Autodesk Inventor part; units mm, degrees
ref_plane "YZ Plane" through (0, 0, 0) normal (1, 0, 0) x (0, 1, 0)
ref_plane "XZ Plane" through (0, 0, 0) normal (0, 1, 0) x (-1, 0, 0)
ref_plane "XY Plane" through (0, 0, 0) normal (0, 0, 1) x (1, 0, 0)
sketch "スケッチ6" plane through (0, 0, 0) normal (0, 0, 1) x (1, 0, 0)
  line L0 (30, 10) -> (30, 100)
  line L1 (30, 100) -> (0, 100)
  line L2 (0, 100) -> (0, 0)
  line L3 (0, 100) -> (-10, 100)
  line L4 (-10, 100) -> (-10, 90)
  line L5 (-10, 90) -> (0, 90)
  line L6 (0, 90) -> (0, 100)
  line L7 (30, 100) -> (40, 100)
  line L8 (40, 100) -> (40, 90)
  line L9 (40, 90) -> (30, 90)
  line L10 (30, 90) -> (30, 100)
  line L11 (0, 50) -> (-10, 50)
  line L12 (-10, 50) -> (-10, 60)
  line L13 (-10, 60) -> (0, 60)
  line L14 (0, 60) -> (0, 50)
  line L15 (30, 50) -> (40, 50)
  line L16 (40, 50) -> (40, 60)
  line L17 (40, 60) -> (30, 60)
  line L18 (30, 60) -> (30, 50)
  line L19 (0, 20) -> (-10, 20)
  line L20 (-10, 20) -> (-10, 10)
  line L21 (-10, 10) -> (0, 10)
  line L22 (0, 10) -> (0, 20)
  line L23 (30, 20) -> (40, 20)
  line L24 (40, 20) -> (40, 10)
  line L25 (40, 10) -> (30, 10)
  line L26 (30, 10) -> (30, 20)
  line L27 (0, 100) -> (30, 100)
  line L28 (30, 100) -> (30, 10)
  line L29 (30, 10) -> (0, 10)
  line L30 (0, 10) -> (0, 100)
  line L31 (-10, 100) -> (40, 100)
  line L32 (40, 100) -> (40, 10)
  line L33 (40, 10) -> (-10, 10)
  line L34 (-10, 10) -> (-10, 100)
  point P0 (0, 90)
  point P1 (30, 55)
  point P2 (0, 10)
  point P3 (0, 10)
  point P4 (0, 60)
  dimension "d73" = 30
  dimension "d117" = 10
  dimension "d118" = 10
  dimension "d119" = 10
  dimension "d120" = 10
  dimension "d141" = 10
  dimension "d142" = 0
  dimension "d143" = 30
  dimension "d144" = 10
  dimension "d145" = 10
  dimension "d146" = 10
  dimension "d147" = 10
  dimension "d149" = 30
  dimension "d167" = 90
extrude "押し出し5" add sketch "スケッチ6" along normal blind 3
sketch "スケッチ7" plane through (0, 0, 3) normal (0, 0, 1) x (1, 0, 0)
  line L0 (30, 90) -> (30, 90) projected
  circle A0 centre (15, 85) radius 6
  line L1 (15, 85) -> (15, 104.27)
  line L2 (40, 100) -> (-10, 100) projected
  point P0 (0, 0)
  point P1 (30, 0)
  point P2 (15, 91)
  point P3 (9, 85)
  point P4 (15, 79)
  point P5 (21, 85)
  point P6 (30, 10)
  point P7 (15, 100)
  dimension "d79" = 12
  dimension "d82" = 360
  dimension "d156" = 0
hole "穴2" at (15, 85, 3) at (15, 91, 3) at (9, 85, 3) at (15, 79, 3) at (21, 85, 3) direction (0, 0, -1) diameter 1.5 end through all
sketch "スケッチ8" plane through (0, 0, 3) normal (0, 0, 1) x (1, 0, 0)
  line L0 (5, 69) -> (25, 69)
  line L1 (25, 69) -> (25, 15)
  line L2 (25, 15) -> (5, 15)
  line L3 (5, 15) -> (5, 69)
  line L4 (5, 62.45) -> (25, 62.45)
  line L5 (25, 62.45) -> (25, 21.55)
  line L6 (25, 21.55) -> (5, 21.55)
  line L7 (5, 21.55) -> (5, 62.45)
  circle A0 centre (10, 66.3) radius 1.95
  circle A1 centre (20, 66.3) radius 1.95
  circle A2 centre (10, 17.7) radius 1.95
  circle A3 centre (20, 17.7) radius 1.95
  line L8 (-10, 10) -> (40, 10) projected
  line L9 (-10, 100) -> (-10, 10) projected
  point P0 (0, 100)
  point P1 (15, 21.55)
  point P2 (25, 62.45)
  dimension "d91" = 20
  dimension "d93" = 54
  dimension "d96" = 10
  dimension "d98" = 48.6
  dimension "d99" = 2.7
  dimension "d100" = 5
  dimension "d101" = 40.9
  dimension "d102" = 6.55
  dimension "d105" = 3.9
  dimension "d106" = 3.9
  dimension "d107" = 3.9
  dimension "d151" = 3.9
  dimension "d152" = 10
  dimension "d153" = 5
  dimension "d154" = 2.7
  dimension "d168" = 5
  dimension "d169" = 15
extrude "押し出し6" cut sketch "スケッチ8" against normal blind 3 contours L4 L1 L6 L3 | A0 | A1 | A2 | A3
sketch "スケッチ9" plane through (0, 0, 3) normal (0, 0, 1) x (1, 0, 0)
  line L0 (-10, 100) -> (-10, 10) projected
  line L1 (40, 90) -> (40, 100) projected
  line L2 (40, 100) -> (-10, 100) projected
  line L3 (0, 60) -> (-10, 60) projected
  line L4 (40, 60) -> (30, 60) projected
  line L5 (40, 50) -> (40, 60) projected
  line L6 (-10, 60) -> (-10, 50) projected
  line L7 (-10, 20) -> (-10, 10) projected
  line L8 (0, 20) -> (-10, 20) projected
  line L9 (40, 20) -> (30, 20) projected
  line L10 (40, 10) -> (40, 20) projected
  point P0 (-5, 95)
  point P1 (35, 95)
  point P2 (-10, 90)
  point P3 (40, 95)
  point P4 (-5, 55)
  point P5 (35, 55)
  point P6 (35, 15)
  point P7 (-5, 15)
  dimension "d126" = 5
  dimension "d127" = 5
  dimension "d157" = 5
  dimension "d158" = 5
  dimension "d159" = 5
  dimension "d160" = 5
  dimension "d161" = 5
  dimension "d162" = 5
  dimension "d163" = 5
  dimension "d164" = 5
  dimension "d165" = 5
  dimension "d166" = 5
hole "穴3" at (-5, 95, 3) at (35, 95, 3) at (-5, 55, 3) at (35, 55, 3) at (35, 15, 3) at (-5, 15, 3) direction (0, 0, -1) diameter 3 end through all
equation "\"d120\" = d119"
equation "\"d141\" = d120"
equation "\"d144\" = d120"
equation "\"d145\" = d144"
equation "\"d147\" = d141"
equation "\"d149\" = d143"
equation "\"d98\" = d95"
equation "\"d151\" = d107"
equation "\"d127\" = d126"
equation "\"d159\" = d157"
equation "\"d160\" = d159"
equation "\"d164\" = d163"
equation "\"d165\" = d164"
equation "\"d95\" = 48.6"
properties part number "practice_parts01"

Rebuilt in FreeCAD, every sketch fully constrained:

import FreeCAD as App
import Part
import Sketcher
Q = App.Units.Quantity


def add_polygon(sketch, points):
    """Adds a closed chain of lines whose ends are joined by coincident constraints."""
    first, n = sketch.GeometryCount, len(points)
    for a, b in zip(points, points[1:] + points[:1]):
        sketch.addGeometry(Part.LineSegment(App.Vector(*a, 0), App.Vector(*b, 0)), False)
    for i in range(n):
        sketch.addConstraint(Sketcher.Constraint("Coincident", first + i, 2, first + (i + 1) % n, 1))

doc = App.newDocument("Part")
body = doc.addObject("PartDesign::Body", "Body")

# Sketch on XY plane
sketch1 = body.newObject("Sketcher::SketchObject", "Sketch")
sketch1.AttachmentSupport = (doc.getObject("XY_Plane"), [""])
sketch1.MapMode = "FlatFace"
add_polygon(sketch1, [(40, 10), (40, 100), (-10, 100), (-10, 10)])  # lines 0-3
sketch1.addConstraint([
    Sketcher.Constraint("Vertical", 0),
    Sketcher.Constraint("Horizontal", 1),
    Sketcher.Constraint("Vertical", 2),
    Sketcher.Constraint("Horizontal", 3),
    Sketcher.Constraint("DistanceY", 0, 1, 0, 2, Q("90 mm")),
    Sketcher.Constraint("DistanceX", 1, 2, -1, 1, Q("10 mm")),
    Sketcher.Constraint("DistanceY", -1, 1, 2, 2, Q("10 mm")),
    Sketcher.Constraint("DistanceX", 1, 2, 1, 1, Q("50 mm")),
])
pad1 = body.newObject("PartDesign::Pad", "Pad")
pad1.Profile = sketch1
pad1.Length = 3

# Sketch on XY plane
sketch2 = body.newObject("Sketcher::SketchObject", "Sketch001")
sketch2.AttachmentSupport = (doc.getObject("XY_Plane"), [""])
sketch2.MapMode = "FlatFace"
sketch2.AttachmentOffset = App.Placement(App.Vector(0, 0, 3), App.Rotation())
sketch2.addGeometry([
    Part.Circle(App.Vector(15, 85, 0), App.Vector(0, 0, 1), 0.8),  # 0
    Part.Circle(App.Vector(15, 91, 0), App.Vector(0, 0, 1), 0.8),  # 1
    Part.Circle(App.Vector(9, 85, 0), App.Vector(0, 0, 1), 0.8),  # 2
    Part.Circle(App.Vector(15, 79, 0), App.Vector(0, 0, 1), 0.8),  # 3
    Part.Circle(App.Vector(21, 85, 0), App.Vector(0, 0, 1), 0.8),  # 4
], False)
sketch2.addConstraint([
    Sketcher.Constraint("Equal", 0, 1),
    Sketcher.Constraint("Equal", 1, 2),
    Sketcher.Constraint("Equal", 2, 3),
    Sketcher.Constraint("Equal", 3, 4),
    Sketcher.Constraint("Horizontal", 0, 3, 2, 3),
    Sketcher.Constraint("Horizontal", 2, 3, 4, 3),
    Sketcher.Constraint("Vertical", 0, 3, 1, 3),
    Sketcher.Constraint("Vertical", 1, 3, 3, 3),
    Sketcher.Constraint("Diameter", 0, Q("1.5 mm")),
    Sketcher.Constraint("DistanceX", -1, 1, 0, 3, Q("15 mm")),
    Sketcher.Constraint("DistanceY", -1, 1, 0, 3, Q("85 mm")),
    Sketcher.Constraint("DistanceY", -1, 1, 1, 3, Q("91 mm")),
    Sketcher.Constraint("DistanceX", -1, 1, 2, 3, Q("9 mm")),
    Sketcher.Constraint("DistanceY", -1, 1, 3, 3, Q("79 mm")),
    Sketcher.Constraint("DistanceX", -1, 1, 4, 3, Q("21 mm")),
])
doc.recompute()
hole = body.newObject("PartDesign::Hole", "Hole")
hole.Profile = sketch2
hole.ThreadType = "None"
hole.Diameter = 1.5
hole.DepthType = "ThroughAll"

# Sketch on XY plane
sketch3 = body.newObject("Sketcher::SketchObject", "Sketch002")
sketch3.AttachmentSupport = (doc.getObject("XY_Plane"), [""])
sketch3.MapMode = "FlatFace"
sketch3.AttachmentOffset = App.Placement(App.Vector(0, 0, 3), App.Rotation())
add_polygon(sketch3, [(25, 62.5), (5, 62.5), (5, 21.6), (25, 21.6)])  # lines 0-3
sketch3.addGeometry(Part.Circle(App.Vector(10, 66.3, 0), App.Vector(0, 0, 1), 1.9), False)  # 4
sketch3.addGeometry(Part.Circle(App.Vector(20, 66.3, 0), App.Vector(0, 0, 1), 1.9), False)  # 5
sketch3.addGeometry(Part.Circle(App.Vector(10, 17.7, 0), App.Vector(0, 0, 1), 1.9), False)  # 6
sketch3.addGeometry(Part.Circle(App.Vector(20, 17.7, 0), App.Vector(0, 0, 1), 1.9), False)  # 7
sketch3.addConstraint([
    Sketcher.Constraint("Horizontal", 0),
    Sketcher.Constraint("Vertical", 1),
    Sketcher.Constraint("Horizontal", 2),
    Sketcher.Constraint("Vertical", 3),
    Sketcher.Constraint("Equal", 4, 5),
    Sketcher.Constraint("Equal", 5, 6),
    Sketcher.Constraint("Equal", 6, 7),
    Sketcher.Constraint("Horizontal", 4, 3, 5, 3),
    Sketcher.Constraint("Horizontal", 6, 3, 7, 3),
    Sketcher.Constraint("Vertical", 4, 3, 6, 3),
    Sketcher.Constraint("Vertical", 5, 3, 7, 3),
    Sketcher.Constraint("Diameter", 4, Q("3.9 mm")),
    Sketcher.Constraint("DistanceX", 0, 2, 0, 1, Q("20 mm")),
    Sketcher.Constraint("DistanceY", 1, 2, 1, 1, Q("40.9 mm")),
    Sketcher.Constraint("DistanceX", -1, 1, 4, 3, Q("10 mm")),
    Sketcher.Constraint("DistanceX", -1, 1, 5, 3, Q("20 mm")),
    Sketcher.Constraint("DistanceX", -1, 1, 0, 2, Q("5 mm")),
    Sketcher.Constraint("DistanceY", 6, 3, 4, 3, Q("48.6 mm")),
    Sketcher.Constraint("DistanceY", -1, 1, 4, 3, Q("66.3 mm")),
    Sketcher.Constraint("DistanceY", -1, 1, 0, 2, Q("62.45 mm")),
])
pocket1 = body.newObject("PartDesign::Pocket", "Pocket")
pocket1.Profile = sketch3
pocket1.Length = 3

# Sketch on XY plane
sketch4 = body.newObject("Sketcher::SketchObject", "Sketch003")
sketch4.AttachmentSupport = (doc.getObject("XY_Plane"), [""])
sketch4.MapMode = "FlatFace"
sketch4.AttachmentOffset = App.Placement(App.Vector(0, 0, 3), App.Rotation())
sketch4.addGeometry([
    Part.Circle(App.Vector(-5, 95, 0), App.Vector(0, 0, 1), 1.5),  # 0
    Part.Circle(App.Vector(35, 95, 0), App.Vector(0, 0, 1), 1.5),  # 1
    Part.Circle(App.Vector(-5, 55, 0), App.Vector(0, 0, 1), 1.5),  # 2
    Part.Circle(App.Vector(35, 55, 0), App.Vector(0, 0, 1), 1.5),  # 3
    Part.Circle(App.Vector(35, 15, 0), App.Vector(0, 0, 1), 1.5),  # 4
    Part.Circle(App.Vector(-5, 15, 0), App.Vector(0, 0, 1), 1.5),  # 5
], False)
sketch4.addConstraint([
    Sketcher.Constraint("Equal", 0, 1),
    Sketcher.Constraint("Equal", 1, 2),
    Sketcher.Constraint("Equal", 2, 3),
    Sketcher.Constraint("Equal", 3, 4),
    Sketcher.Constraint("Equal", 4, 5),
    Sketcher.Constraint("Horizontal", 0, 3, 1, 3),
    Sketcher.Constraint("Horizontal", 2, 3, 3, 3),
    Sketcher.Constraint("Horizontal", 4, 3, 5, 3),
    Sketcher.Constraint("Vertical", 0, 3, 2, 3),
    Sketcher.Constraint("Vertical", 1, 3, 3, 3),
    Sketcher.Constraint("Vertical", 3, 3, 4, 3),
    Sketcher.Constraint("Vertical", 2, 3, 5, 3),
    Sketcher.Constraint("Diameter", 0, Q("3 mm")),
    Sketcher.Constraint("DistanceX", 0, 3, -1, 1, Q("5 mm")),
    Sketcher.Constraint("DistanceY", -1, 1, 0, 3, Q("95 mm")),
    Sketcher.Constraint("DistanceX", -1, 1, 1, 3, Q("35 mm")),
    Sketcher.Constraint("DistanceY", -1, 1, 2, 3, Q("55 mm")),
    Sketcher.Constraint("DistanceY", -1, 1, 4, 3, Q("15 mm")),
])
doc.recompute()
hole2 = body.newObject("PartDesign::Hole", "Hole001")
hole2.Profile = sketch4
hole2.ThreadType = "None"
hole2.Diameter = 3
hole2.DepthType = "ThroughAll"

doc.recompute()
